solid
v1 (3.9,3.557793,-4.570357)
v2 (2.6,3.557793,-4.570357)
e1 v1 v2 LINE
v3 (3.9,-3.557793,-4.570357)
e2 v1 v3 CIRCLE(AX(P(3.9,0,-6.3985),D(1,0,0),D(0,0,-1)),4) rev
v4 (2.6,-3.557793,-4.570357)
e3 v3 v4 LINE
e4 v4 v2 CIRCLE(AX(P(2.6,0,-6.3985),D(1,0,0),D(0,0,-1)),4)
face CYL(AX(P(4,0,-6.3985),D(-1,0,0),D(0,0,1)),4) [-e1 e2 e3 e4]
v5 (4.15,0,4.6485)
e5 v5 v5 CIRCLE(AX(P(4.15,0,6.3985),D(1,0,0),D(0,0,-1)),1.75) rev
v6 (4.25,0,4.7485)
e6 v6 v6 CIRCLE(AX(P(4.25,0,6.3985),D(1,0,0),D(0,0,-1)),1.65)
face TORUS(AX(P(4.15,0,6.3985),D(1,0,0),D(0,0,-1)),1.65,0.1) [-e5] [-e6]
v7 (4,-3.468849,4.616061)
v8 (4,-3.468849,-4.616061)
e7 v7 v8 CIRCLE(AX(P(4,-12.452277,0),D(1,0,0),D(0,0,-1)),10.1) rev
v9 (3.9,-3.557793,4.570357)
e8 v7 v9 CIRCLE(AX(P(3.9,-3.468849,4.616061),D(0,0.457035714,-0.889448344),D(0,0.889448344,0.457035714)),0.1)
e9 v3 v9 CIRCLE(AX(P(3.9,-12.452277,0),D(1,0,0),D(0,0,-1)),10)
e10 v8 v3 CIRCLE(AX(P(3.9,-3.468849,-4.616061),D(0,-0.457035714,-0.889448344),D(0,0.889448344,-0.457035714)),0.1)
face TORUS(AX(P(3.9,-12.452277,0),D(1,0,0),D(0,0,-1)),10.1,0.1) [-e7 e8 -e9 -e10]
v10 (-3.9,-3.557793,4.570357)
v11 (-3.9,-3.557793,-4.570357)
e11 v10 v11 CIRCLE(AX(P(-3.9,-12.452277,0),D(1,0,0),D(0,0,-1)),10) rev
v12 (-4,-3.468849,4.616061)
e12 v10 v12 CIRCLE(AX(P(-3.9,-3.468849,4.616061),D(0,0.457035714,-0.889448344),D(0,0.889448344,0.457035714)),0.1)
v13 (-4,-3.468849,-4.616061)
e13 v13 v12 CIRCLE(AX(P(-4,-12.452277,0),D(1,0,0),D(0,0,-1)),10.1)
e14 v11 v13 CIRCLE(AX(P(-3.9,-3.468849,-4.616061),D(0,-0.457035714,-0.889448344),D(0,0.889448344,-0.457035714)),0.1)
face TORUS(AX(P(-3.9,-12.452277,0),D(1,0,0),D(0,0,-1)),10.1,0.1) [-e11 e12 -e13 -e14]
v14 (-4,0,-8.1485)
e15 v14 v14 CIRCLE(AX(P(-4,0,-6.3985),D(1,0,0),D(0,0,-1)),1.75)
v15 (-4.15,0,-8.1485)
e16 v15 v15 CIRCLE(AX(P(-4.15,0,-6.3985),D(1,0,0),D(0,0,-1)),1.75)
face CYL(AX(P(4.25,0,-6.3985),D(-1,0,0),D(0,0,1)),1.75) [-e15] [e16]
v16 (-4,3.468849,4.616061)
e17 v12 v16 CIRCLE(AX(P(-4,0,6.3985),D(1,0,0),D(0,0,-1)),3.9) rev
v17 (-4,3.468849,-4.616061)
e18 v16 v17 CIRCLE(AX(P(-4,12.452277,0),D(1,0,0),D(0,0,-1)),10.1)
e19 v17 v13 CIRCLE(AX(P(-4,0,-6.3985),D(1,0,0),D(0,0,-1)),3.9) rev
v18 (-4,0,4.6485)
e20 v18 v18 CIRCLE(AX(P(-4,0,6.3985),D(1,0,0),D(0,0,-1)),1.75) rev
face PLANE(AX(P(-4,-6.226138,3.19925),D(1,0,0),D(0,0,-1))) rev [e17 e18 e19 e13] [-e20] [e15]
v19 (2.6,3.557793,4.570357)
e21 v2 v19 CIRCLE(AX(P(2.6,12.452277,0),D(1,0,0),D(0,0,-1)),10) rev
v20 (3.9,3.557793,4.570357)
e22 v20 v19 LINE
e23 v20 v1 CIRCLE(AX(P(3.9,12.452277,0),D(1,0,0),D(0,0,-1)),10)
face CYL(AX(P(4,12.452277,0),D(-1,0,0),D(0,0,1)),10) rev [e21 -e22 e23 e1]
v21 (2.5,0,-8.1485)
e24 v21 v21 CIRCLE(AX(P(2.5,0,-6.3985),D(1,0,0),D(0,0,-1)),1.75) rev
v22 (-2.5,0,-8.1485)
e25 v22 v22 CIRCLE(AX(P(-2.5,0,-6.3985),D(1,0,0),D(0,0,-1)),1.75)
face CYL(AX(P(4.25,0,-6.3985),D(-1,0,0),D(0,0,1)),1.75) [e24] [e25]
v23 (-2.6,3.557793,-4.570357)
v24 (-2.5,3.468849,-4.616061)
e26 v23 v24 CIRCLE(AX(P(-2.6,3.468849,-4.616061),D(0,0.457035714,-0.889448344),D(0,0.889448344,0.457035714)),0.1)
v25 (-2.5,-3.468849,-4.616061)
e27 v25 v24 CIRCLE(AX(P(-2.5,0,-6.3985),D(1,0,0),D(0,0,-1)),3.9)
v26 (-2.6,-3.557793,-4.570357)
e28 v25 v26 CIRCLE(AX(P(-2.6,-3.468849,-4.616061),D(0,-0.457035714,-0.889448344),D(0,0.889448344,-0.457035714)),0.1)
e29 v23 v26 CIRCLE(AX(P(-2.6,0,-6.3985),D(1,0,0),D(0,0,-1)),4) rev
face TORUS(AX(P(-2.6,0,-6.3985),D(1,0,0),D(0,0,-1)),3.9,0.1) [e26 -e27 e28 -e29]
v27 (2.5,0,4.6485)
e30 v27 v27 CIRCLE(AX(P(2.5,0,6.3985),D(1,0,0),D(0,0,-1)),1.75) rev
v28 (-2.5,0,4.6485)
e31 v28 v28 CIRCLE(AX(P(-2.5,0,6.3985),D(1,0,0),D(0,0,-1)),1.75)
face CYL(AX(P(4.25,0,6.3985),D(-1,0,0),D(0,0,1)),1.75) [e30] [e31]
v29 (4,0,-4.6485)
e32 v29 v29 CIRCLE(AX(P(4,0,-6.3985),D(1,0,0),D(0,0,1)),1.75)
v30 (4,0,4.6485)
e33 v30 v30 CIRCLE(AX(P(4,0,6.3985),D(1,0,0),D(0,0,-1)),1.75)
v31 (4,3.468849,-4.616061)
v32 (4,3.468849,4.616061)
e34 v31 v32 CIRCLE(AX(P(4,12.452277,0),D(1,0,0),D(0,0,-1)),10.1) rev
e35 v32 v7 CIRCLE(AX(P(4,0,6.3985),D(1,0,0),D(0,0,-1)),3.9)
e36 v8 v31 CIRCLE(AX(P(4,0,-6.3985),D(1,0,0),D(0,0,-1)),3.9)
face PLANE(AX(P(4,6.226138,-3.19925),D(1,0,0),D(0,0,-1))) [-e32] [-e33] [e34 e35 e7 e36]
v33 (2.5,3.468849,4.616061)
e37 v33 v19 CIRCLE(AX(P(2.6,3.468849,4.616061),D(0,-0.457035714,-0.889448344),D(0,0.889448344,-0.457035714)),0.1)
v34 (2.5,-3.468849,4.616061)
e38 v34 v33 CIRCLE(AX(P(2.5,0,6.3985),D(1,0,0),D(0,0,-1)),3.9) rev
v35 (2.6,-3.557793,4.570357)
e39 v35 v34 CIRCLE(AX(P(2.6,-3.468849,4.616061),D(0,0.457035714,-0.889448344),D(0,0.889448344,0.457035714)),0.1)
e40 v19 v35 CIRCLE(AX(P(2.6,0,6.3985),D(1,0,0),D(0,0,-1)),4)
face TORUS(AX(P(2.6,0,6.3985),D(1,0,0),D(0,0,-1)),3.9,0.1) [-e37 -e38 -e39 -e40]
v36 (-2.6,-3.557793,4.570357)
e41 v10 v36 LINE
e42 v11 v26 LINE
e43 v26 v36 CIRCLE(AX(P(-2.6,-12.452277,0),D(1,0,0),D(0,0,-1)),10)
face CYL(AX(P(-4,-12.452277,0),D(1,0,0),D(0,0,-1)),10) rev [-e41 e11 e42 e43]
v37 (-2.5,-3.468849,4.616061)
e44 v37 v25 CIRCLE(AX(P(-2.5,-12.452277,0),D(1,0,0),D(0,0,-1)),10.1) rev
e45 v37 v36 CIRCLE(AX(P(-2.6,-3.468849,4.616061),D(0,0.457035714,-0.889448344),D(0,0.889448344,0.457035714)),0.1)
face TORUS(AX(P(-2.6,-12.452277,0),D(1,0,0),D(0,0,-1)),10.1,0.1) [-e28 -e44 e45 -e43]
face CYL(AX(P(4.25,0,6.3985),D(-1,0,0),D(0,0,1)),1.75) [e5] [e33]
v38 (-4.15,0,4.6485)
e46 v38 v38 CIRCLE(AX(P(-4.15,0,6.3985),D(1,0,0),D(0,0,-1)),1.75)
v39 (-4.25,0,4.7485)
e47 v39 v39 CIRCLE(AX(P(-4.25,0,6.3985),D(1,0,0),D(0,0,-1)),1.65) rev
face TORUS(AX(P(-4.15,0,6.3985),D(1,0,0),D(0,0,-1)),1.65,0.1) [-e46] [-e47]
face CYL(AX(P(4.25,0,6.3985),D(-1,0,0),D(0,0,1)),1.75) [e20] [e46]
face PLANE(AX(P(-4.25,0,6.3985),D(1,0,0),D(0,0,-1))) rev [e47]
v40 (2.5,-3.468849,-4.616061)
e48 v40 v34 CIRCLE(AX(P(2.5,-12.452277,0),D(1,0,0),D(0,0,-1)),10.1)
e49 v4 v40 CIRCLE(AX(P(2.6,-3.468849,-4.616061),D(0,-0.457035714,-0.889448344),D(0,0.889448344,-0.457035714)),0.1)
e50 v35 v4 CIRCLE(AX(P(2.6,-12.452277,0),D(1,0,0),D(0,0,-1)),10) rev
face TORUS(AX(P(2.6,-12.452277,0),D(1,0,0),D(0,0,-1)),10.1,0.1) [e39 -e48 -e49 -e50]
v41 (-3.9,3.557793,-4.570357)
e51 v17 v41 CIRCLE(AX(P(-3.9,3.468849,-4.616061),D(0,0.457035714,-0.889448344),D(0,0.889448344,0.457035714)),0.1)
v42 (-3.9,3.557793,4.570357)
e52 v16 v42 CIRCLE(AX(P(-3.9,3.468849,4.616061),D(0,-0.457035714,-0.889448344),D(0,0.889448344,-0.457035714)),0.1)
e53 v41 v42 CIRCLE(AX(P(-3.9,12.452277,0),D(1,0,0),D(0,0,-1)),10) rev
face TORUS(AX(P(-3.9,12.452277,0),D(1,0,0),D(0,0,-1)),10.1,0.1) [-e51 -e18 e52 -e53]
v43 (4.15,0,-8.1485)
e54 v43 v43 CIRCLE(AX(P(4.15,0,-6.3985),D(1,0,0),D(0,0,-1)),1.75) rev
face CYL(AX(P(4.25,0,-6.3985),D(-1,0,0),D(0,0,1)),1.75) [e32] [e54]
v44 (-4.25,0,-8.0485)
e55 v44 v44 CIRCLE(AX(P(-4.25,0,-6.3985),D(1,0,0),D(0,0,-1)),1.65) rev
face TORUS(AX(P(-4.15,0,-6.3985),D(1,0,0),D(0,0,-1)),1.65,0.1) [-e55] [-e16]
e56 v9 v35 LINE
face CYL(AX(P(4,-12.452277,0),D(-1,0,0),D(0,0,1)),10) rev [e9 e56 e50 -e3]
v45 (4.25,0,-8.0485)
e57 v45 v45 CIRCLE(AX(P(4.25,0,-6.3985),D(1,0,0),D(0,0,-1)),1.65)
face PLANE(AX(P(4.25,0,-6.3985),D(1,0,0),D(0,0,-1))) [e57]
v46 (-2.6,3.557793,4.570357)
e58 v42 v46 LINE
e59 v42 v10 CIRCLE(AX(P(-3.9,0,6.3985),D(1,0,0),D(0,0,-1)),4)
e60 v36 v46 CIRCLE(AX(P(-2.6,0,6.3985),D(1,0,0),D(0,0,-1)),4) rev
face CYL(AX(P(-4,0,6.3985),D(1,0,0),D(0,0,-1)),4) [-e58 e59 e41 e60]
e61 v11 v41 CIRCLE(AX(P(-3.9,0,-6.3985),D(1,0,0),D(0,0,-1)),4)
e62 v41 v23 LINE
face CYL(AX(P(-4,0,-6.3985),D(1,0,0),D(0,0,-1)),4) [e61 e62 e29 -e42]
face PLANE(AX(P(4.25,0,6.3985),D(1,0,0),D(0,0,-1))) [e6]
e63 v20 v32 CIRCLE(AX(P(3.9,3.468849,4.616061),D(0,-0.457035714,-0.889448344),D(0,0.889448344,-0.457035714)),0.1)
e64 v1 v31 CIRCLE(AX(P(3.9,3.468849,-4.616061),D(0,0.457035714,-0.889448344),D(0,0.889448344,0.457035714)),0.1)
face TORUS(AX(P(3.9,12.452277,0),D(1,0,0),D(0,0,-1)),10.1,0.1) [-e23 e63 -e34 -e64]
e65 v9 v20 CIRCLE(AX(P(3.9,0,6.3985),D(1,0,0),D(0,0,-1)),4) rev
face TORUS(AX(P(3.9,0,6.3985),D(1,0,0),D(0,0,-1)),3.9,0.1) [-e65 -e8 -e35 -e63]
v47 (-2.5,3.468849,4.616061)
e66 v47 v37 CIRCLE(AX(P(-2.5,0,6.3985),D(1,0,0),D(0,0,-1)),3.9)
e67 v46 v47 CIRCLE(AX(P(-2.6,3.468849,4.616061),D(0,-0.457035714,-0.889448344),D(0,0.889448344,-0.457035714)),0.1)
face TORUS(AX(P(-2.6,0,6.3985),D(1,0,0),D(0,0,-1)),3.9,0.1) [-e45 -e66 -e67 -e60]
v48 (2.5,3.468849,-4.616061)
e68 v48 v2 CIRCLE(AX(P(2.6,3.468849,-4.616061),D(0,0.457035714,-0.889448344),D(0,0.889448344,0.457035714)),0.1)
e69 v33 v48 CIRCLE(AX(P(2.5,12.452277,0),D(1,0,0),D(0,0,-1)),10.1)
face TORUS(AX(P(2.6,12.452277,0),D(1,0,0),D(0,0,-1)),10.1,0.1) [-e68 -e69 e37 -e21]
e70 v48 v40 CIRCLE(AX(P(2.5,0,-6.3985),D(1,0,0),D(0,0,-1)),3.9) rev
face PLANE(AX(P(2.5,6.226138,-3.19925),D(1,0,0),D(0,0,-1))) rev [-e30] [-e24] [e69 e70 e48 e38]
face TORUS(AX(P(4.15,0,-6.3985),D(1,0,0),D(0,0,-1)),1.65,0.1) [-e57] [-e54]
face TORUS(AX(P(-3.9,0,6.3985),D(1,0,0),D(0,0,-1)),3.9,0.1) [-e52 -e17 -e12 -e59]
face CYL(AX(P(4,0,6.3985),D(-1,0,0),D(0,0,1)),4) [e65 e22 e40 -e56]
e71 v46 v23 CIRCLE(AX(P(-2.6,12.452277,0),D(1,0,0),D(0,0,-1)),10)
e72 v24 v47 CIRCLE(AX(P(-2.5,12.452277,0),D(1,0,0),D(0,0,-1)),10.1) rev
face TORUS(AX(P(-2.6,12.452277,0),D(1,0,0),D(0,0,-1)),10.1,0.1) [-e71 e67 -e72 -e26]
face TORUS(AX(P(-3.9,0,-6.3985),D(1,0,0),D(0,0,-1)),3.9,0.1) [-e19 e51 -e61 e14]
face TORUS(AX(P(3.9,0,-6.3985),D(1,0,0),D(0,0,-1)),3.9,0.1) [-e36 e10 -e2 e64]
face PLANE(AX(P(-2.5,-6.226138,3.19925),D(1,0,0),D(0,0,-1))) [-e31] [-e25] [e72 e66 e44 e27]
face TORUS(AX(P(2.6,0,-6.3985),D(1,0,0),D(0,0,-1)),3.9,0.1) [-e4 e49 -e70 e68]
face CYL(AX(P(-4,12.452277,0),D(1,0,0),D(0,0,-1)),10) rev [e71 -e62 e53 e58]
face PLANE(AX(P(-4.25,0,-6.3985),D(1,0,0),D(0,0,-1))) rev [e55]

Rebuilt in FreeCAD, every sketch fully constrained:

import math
import FreeCAD as App
import Part
import Sketcher

V = App.Vector
Q = App.Units.Quantity


def edges_at(feature, points):
    """Names of the edges that pass closest to the given points."""
    edges = feature.Shape.Edges
    near = lambda p: min(range(len(edges)), key=lambda i: edges[i].distToShape(Part.Vertex(*p))[0])
    return sorted({f"Edge{near(p) + 1}" for p in points})

doc = App.newDocument("Part")
params = doc.addObject("Spreadsheet::Sheet", "Params")
for row, (alias, value) in enumerate([
    ("sketch1_radius", "4 mm"),
    ("sketch1_radius2", "10 mm"),
    ("sketch1_diameter", "3.5 mm"),
    ("pad1_length", "1.5 mm"),
    ("sketch2_radius", "10 mm"),
    ("sketch2_radius2", "4 mm"),
    ("sketch2_diameter", "3.5 mm"),
    ("pad2_length", "1.5 mm"),
    ("sketch3_diameter", "3.5 mm"),
    ("pad3_length", "8.5 mm"),
    ("fillet_radius", "0.1 mm"),
], start=1):
    params.set(f"A{row}", alias)
    params.set(f"B{row}", "=" + value)
    params.setAlias(f"B{row}", alias)

body = doc.addObject("PartDesign::Body", "Body")

sketch1 = doc.addObject("Sketcher::SketchObject", "Sketch")
body.addObject(sketch1)
sketch1.AttachmentSupport = (doc.YZ_Plane, [""])
sketch1.MapMode = "FlatFace"
sketch1.AttachmentOffset = App.Placement(V(0, 0, 2.5), App.Rotation())
sketch1.addGeometry([
    Part.ArcOfCircle(Part.Circle(V(0, 6.4, 0), V(0, 0, 1), 4), math.radians(-27), math.radians(207)),
    Part.ArcOfCircle(Part.Circle(V(-12.5, 0, 0), V(0, 0, 1), 10), math.radians(-27), math.radians(27)),
    Part.ArcOfCircle(Part.Circle(V(0, -6.4, 0), V(0, 0, 1), 4), math.radians(153), math.radians(387)),
    Part.ArcOfCircle(Part.Circle(V(12.5, 0, 0), V(0, 0, 1), 10), math.radians(153), math.radians(207)),
    Part.Circle(V(0, 6.4, 0), V(0, 0, 1), 1.8),
    Part.Circle(V(0, -6.4, 0), V(0, 0, 1), 1.8),
], False)
sketch1.addConstraint([
    Sketcher.Constraint("Tangent", 0, 2, 1, 2),
    Sketcher.Constraint("Tangent", 1, 1, 2, 1),
    Sketcher.Constraint("Tangent", 2, 2, 3, 2),
    Sketcher.Constraint("Tangent", 3, 1, 0, 1),
    Sketcher.Constraint("Coincident", 4, 3, 0, 3),
    Sketcher.Constraint("Coincident", 5, 3, 2, 3),
    Sketcher.Constraint("Equal", 0, 2),
    Sketcher.Constraint("Equal", 1, 3),
    Sketcher.Constraint("Equal", 4, 5),
    Sketcher.Constraint("Symmetric", 0, 3, 2, 3, -1, 1),
    Sketcher.Constraint("PointOnObject", 0, 3, -2),
    Sketcher.Constraint("Radius", 0, Q("4 mm")),
    Sketcher.Constraint("Radius", 1, Q("10 mm")),
    Sketcher.Constraint("Diameter", 4, Q("3.5 mm")),
    Sketcher.Constraint("DistanceY", 2, 3, 0, 3, Q("12.797 mm")),
])
sketch1.setExpression("Constraints[11]", "Params.sketch1_radius")
sketch1.setExpression("Constraints[12]", "Params.sketch1_radius2")
sketch1.setExpression("Constraints[13]", "Params.sketch1_diameter")
pad1 = doc.addObject("PartDesign::Pad", "Pad")
body.addObject(pad1)
pad1.Profile = sketch1
pad1.setExpression("Length", "Params.pad1_length")
body2 = doc.addObject("PartDesign::Body", "Body001")

sketch2 = doc.addObject("Sketcher::SketchObject", "Sketch001")
body2.addObject(sketch2)
sketch2.AttachmentSupport = (doc.getObject("YZ_Plane001"), [""])
sketch2.MapMode = "FlatFace"
sketch2.AttachmentOffset = App.Placement(V(0, 0, -2.5), App.Rotation())
sketch2.addGeometry([
    Part.ArcOfCircle(Part.Circle(V(12.5, 0, 0), V(0, 0, 1), 10), math.radians(153), math.radians(207)),
    Part.ArcOfCircle(Part.Circle(V(0, 6.4, 0), V(0, 0, 1), 4), math.radians(-27), math.radians(207)),
    Part.ArcOfCircle(Part.Circle(V(-12.5, 0, 0), V(0, 0, 1), 10), math.radians(-27), math.radians(27)),
    Part.ArcOfCircle(Part.Circle(V(0, -6.4, 0), V(0, 0, 1), 4), math.radians(153), math.radians(387)),
    Part.Circle(V(0, -6.4, 0), V(0, 0, 1), 1.8),
    Part.Circle(V(0, 6.4, 0), V(0, 0, 1), 1.8),
], False)
sketch2.addConstraint([
    Sketcher.Constraint("Tangent", 0, 1, 1, 1),
    Sketcher.Constraint("Tangent", 1, 2, 2, 2),
    Sketcher.Constraint("Tangent", 2, 1, 3, 1),
    Sketcher.Constraint("Tangent", 3, 2, 0, 2),
    Sketcher.Constraint("Coincident", 4, 3, 3, 3),
    Sketcher.Constraint("Coincident", 5, 3, 1, 3),
    Sketcher.Constraint("Equal", 0, 2),
    Sketcher.Constraint("Equal", 1, 3),
    Sketcher.Constraint("Equal", 4, 5),
    Sketcher.Constraint("Symmetric", 0, 3, 2, 3, -1, 1),
    Sketcher.Constraint("PointOnObject", 0, 3, -1),
    Sketcher.Constraint("Radius", 0, Q("10 mm")),
    Sketcher.Constraint("Radius", 1, Q("4 mm")),
    Sketcher.Constraint("Diameter", 4, Q("3.5 mm")),
    Sketcher.Constraint("DistanceY", 3, 3, 1, 3, Q("12.797 mm")),
])
sketch2.setExpression("Constraints[11]", "Params.sketch2_radius")
sketch2.setExpression("Constraints[12]", "Params.sketch2_radius2")
sketch2.setExpression("Constraints[13]", "Params.sketch2_diameter")
pad2 = doc.addObject("PartDesign::Pad", "Pad001")
body2.addObject(pad2)
pad2.Profile = sketch2
pad2.setExpression("Length", "Params.pad2_length")
pad2.Reversed = True
body.AllowCompound = True
doc.recompute()

boolean = doc.addObject("PartDesign::Boolean", "Boolean")
body.addObject(boolean)
boolean.Type = "Fuse"
boolean.addObjects([body2])

sketch3 = doc.addObject("Sketcher::SketchObject", "Sketch002")
body.addObject(sketch3)
sketch3.AttachmentSupport = (doc.YZ_Plane, [""])
sketch3.MapMode = "FlatFace"
sketch3.addGeometry([
    Part.Circle(V(0, -6.4, 0), V(0, 0, 1), 1.8),
    Part.Circle(V(0, 6.4, 0), V(0, 0, 1), 1.8),
], False)
sketch3.addConstraint([
    Sketcher.Constraint("Equal", 0, 1),
    Sketcher.Constraint("Symmetric", 0, 3, 1, 3, -1, 1),
    Sketcher.Constraint("PointOnObject", 0, 3, -2),
    Sketcher.Constraint("Diameter", 0, Q("3.5 mm")),
    Sketcher.Constraint("DistanceY", 0, 3, 1, 3, Q("12.797 mm")),
])
sketch3.setExpression("Constraints[3]", "Params.sketch3_diameter")
pad3 = doc.addObject("PartDesign::Pad", "Pad002")
body.addObject(pad3)
pad3.Profile = sketch3
pad3.setExpression("Length", "Params.pad3_length")
pad3.Midplane = True
doc.recompute()

fillet = doc.addObject("PartDesign::Fillet", "Fillet")
body.addObject(fillet)
fillet.Base = (pad3, edges_at(pad3, [
    (4, -2.452, 0),
    (4, 0, -10.399),
    (-4.25, 0, -4.649),
    (4.25, 0, -4.649),
    (-4, 0, 10.399),
    (-4, 2.452, 0),
    (-4, 0, -10.399),
    (-4, -2.452, 0),
    (-2.5, 0, 10.399),
    (-2.5, -2.452, 0),
    (-2.5, 0, -10.399),
    (-2.5, 2.452, 0),
    (-4.25, 0, 8.149),
    (4.25, 0, 8.149),
    (4, 2.452, 0),
    (2.5, 0, -10.399),
    (2.5, -2.452, 0),
    (2.5, 0, 10.399),
    (2.5, 2.452, 0),
    (4, 0, 10.399),
]))
fillet.setExpression("Radius", "Params.fillet_radius")

doc.recompute()
